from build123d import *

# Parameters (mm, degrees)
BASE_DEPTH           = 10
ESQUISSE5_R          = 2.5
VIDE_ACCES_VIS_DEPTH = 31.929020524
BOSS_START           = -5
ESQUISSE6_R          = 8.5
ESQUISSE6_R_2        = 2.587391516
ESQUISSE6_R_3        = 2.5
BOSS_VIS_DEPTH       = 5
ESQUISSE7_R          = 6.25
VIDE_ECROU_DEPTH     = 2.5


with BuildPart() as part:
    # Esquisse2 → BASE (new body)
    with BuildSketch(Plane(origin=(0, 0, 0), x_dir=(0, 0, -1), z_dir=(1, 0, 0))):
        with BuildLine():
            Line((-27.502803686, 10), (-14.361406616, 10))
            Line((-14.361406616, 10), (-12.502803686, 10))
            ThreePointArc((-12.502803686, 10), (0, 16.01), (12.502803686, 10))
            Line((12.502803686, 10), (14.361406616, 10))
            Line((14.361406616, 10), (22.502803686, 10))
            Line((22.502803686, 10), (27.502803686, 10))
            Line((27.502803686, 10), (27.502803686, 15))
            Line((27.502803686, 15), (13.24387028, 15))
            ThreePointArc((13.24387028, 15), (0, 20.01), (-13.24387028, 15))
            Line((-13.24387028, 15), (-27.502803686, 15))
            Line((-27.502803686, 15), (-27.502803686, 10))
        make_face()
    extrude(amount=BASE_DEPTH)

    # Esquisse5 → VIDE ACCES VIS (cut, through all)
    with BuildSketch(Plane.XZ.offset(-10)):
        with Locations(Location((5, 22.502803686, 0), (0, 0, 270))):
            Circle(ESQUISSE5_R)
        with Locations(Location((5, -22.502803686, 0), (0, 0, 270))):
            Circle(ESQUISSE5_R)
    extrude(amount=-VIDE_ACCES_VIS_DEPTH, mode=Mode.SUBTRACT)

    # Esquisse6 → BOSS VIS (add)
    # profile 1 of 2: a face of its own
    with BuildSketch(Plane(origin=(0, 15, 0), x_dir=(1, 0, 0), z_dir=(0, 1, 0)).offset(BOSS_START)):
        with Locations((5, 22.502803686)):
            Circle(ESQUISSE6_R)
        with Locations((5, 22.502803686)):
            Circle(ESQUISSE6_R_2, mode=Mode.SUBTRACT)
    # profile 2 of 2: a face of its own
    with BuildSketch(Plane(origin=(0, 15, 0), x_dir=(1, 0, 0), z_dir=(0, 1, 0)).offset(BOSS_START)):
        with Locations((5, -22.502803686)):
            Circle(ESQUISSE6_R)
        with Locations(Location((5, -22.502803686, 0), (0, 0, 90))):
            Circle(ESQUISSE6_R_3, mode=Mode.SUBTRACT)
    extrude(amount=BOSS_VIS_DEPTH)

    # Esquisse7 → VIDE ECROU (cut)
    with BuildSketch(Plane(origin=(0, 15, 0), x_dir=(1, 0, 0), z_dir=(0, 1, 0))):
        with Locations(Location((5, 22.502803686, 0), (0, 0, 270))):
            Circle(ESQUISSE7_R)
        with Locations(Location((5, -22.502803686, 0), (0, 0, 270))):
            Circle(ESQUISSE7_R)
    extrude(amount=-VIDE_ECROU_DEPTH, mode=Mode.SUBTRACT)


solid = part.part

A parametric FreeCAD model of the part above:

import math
import FreeCAD as App
import Part
import Sketcher
from FreeCAD import Vector
Q = App.Units.Quantity

doc = App.newDocument("Part")
body = doc.addObject("PartDesign::Body", "Body")

sketch1 = doc.addObject("Sketcher::SketchObject", "Sketch")
body.addObject(sketch1)
sketch1.AttachmentSupport = (doc.YZ_Plane, [""])
sketch1.MapMode = "FlatFace"
sketch1.addGeometry([
    Part.LineSegment(Vector(10, 28, 0), Vector(10, 13, 0)),
    Part.ArcOfCircle(Part.Circle(Vector(0, 0, 0), Vector(0, 0, 1), 16), math.radians(-51), math.radians(51)),
    Part.LineSegment(Vector(10, -13, 0), Vector(10, -28, 0)),
    Part.LineSegment(Vector(10, -28, 0), Vector(15, -28, 0)),
    Part.LineSegment(Vector(15, -28, 0), Vector(15, -13, 0)),
    Part.ArcOfCircle(Part.Circle(Vector(0, 0, 0), Vector(0, 0, 1), 20), math.radians(-41), math.radians(41)),
    Part.LineSegment(Vector(15, 13, 0), Vector(15, 28, 0)),
    Part.LineSegment(Vector(15, 28, 0), Vector(10, 28, 0)),
], False)
sketch1.addConstraint([
    Sketcher.Constraint("Coincident", 0, 2, 1, 2),
    Sketcher.Constraint("Coincident", 1, 1, 2, 1),
    Sketcher.Constraint("Coincident", 2, 2, 3, 1),
    Sketcher.Constraint("Coincident", 3, 2, 4, 1),
    Sketcher.Constraint("Coincident", 4, 2, 5, 1),
    Sketcher.Constraint("Coincident", 5, 2, 6, 1),
    Sketcher.Constraint("Coincident", 6, 2, 7, 1),
    Sketcher.Constraint("Coincident", 7, 2, 0, 1),
    Sketcher.Constraint("Vertical", 0),
    Sketcher.Constraint("Vertical", 2),
    Sketcher.Constraint("Horizontal", 3),
    Sketcher.Constraint("Vertical", 4),
    Sketcher.Constraint("Vertical", 6),
    Sketcher.Constraint("Horizontal", 7),
    Sketcher.Constraint("Coincident", 1, 3, -1, 1),
    Sketcher.Constraint("Coincident", 5, 3, -1, 1),
    Sketcher.Constraint("Symmetric", 3, 2, 6, 2, -1),
    Sketcher.Constraint("Vertical", 0, 2, 1, 1),
    Sketcher.Constraint("DistanceX", 3, 1, 3, 2, Q("5 mm")),
    Sketcher.Constraint("DistanceY", 0, 2, 0, 1, Q("15 mm")),
    Sketcher.Constraint("Radius", 1, Q("16.01 mm")),
    Sketcher.Constraint("Radius", 5, Q("20.01 mm")),
    Sketcher.Constraint("DistanceX", -1, 1, 0, 2, Q("10 mm")),
])
pad1 = doc.addObject("PartDesign::Pad", "Pad")
body.addObject(pad1)
pad1.Profile = sketch1
pad1.Length = 10

sketch2 = doc.addObject("Sketcher::SketchObject", "Sketch001")
body.addObject(sketch2)
sketch2.AttachmentSupport = (doc.XZ_Plane, [""])
sketch2.MapMode = "FlatFace"
sketch2.AttachmentOffset = App.Placement(Vector(0, 0, -10), App.Rotation())
sketch2.addGeometry([
    Part.Circle(Vector(5, 22.5, 0), Vector(0, 0, 1), 2.5),
    Part.Circle(Vector(5, -22.5, 0), Vector(0, 0, 1), 2.5),
], False)
sketch2.addConstraint([
    Sketcher.Constraint("Equal", 0, 1),
    Sketcher.Constraint("Symmetric", 0, 3, 1, 3, -1),
    Sketcher.Constraint("Diameter", 0, Q("5 mm")),
    Sketcher.Constraint("DistanceX", -1, 1, 0, 3, Q("5 mm")),
    Sketcher.Constraint("DistanceY", -1, 1, 0, 3, Q("22.502804 mm")),
])
pocket1 = doc.addObject("PartDesign::Pocket", "Pocket")
body.addObject(pocket1)
pocket1.Profile = sketch2
pocket1.Type = "ThroughAll"

sketch3 = doc.addObject("Sketcher::SketchObject", "Sketch002")
body.addObject(sketch3)
sketch3.AttachmentSupport = (doc.XZ_Plane, [""])
sketch3.MapMode = "FlatFace"
sketch3.AttachmentOffset = App.Placement(Vector(0, 0, -10), App.Rotation())
sketch3.addGeometry([
    Part.Circle(Vector(5, -22.5, 0), Vector(0, 0, 1), 8.5),
    Part.Circle(Vector(5, -22.5, 0), Vector(0, 0, 1), 2.6),
    Part.Circle(Vector(5, 22.5, 0), Vector(0, 0, 1), 8.5),
    Part.Circle(Vector(5, 22.5, 0), Vector(0, 0, 1), 2.5),
], False)
sketch3.addConstraint([
    Sketcher.Constraint("Coincident", 1, 3, 0, 3),
    Sketcher.Constraint("Coincident", 3, 3, 2, 3),
    Sketcher.Constraint("Equal", 0, 2),
    Sketcher.Constraint("Symmetric", 0, 3, 2, 3, -1),
    Sketcher.Constraint("Diameter", 0, Q("17 mm")),
    Sketcher.Constraint("Diameter", 3, Q("5 mm")),
    Sketcher.Constraint("DistanceX", -1, 1, 0, 3, Q("5 mm")),
    Sketcher.Constraint("Diameter", 1, Q("5.174783 mm")),
    Sketcher.Constraint("DistanceY", 0, 3, -1, 1, Q("22.502804 mm")),
])
pad2 = doc.addObject("PartDesign::Pad", "Pad001")
body.addObject(pad2)
pad2.Profile = sketch3
pad2.Length = 5
pad2.Reversed = True

sketch4 = doc.addObject("Sketcher::SketchObject", "Sketch003")
body.addObject(sketch4)
sketch4.AttachmentSupport = (doc.XZ_Plane, [""])
sketch4.MapMode = "FlatFace"
sketch4.AttachmentOffset = App.Placement(Vector(0, 0, -15), App.Rotation())
sketch4.addGeometry([
    Part.Circle(Vector(5, -23, 0), Vector(0, 0, 1), 6),
    Part.Circle(Vector(5, 23, 0), Vector(0, 0, 1), 6),
], False)
sketch4.addConstraint([
    Sketcher.Constraint("Equal", 0, 1),
    Sketcher.Constraint("Symmetric", 0, 3, 1, 3, -1),
    Sketcher.Constraint("Diameter", 0, Q("12.5 mm")),
    Sketcher.Constraint("DistanceX", -1, 1, 0, 3, Q("5 mm")),
    Sketcher.Constraint("DistanceY", 0, 3, -1, 1, Q("22.502804 mm")),
])
pocket2 = doc.addObject("PartDesign::Pocket", "Pocket001")
body.addObject(pocket2)
pocket2.Profile = sketch4
pocket2.Length = 2.5
pocket2.Reversed = True

doc.recompute()
